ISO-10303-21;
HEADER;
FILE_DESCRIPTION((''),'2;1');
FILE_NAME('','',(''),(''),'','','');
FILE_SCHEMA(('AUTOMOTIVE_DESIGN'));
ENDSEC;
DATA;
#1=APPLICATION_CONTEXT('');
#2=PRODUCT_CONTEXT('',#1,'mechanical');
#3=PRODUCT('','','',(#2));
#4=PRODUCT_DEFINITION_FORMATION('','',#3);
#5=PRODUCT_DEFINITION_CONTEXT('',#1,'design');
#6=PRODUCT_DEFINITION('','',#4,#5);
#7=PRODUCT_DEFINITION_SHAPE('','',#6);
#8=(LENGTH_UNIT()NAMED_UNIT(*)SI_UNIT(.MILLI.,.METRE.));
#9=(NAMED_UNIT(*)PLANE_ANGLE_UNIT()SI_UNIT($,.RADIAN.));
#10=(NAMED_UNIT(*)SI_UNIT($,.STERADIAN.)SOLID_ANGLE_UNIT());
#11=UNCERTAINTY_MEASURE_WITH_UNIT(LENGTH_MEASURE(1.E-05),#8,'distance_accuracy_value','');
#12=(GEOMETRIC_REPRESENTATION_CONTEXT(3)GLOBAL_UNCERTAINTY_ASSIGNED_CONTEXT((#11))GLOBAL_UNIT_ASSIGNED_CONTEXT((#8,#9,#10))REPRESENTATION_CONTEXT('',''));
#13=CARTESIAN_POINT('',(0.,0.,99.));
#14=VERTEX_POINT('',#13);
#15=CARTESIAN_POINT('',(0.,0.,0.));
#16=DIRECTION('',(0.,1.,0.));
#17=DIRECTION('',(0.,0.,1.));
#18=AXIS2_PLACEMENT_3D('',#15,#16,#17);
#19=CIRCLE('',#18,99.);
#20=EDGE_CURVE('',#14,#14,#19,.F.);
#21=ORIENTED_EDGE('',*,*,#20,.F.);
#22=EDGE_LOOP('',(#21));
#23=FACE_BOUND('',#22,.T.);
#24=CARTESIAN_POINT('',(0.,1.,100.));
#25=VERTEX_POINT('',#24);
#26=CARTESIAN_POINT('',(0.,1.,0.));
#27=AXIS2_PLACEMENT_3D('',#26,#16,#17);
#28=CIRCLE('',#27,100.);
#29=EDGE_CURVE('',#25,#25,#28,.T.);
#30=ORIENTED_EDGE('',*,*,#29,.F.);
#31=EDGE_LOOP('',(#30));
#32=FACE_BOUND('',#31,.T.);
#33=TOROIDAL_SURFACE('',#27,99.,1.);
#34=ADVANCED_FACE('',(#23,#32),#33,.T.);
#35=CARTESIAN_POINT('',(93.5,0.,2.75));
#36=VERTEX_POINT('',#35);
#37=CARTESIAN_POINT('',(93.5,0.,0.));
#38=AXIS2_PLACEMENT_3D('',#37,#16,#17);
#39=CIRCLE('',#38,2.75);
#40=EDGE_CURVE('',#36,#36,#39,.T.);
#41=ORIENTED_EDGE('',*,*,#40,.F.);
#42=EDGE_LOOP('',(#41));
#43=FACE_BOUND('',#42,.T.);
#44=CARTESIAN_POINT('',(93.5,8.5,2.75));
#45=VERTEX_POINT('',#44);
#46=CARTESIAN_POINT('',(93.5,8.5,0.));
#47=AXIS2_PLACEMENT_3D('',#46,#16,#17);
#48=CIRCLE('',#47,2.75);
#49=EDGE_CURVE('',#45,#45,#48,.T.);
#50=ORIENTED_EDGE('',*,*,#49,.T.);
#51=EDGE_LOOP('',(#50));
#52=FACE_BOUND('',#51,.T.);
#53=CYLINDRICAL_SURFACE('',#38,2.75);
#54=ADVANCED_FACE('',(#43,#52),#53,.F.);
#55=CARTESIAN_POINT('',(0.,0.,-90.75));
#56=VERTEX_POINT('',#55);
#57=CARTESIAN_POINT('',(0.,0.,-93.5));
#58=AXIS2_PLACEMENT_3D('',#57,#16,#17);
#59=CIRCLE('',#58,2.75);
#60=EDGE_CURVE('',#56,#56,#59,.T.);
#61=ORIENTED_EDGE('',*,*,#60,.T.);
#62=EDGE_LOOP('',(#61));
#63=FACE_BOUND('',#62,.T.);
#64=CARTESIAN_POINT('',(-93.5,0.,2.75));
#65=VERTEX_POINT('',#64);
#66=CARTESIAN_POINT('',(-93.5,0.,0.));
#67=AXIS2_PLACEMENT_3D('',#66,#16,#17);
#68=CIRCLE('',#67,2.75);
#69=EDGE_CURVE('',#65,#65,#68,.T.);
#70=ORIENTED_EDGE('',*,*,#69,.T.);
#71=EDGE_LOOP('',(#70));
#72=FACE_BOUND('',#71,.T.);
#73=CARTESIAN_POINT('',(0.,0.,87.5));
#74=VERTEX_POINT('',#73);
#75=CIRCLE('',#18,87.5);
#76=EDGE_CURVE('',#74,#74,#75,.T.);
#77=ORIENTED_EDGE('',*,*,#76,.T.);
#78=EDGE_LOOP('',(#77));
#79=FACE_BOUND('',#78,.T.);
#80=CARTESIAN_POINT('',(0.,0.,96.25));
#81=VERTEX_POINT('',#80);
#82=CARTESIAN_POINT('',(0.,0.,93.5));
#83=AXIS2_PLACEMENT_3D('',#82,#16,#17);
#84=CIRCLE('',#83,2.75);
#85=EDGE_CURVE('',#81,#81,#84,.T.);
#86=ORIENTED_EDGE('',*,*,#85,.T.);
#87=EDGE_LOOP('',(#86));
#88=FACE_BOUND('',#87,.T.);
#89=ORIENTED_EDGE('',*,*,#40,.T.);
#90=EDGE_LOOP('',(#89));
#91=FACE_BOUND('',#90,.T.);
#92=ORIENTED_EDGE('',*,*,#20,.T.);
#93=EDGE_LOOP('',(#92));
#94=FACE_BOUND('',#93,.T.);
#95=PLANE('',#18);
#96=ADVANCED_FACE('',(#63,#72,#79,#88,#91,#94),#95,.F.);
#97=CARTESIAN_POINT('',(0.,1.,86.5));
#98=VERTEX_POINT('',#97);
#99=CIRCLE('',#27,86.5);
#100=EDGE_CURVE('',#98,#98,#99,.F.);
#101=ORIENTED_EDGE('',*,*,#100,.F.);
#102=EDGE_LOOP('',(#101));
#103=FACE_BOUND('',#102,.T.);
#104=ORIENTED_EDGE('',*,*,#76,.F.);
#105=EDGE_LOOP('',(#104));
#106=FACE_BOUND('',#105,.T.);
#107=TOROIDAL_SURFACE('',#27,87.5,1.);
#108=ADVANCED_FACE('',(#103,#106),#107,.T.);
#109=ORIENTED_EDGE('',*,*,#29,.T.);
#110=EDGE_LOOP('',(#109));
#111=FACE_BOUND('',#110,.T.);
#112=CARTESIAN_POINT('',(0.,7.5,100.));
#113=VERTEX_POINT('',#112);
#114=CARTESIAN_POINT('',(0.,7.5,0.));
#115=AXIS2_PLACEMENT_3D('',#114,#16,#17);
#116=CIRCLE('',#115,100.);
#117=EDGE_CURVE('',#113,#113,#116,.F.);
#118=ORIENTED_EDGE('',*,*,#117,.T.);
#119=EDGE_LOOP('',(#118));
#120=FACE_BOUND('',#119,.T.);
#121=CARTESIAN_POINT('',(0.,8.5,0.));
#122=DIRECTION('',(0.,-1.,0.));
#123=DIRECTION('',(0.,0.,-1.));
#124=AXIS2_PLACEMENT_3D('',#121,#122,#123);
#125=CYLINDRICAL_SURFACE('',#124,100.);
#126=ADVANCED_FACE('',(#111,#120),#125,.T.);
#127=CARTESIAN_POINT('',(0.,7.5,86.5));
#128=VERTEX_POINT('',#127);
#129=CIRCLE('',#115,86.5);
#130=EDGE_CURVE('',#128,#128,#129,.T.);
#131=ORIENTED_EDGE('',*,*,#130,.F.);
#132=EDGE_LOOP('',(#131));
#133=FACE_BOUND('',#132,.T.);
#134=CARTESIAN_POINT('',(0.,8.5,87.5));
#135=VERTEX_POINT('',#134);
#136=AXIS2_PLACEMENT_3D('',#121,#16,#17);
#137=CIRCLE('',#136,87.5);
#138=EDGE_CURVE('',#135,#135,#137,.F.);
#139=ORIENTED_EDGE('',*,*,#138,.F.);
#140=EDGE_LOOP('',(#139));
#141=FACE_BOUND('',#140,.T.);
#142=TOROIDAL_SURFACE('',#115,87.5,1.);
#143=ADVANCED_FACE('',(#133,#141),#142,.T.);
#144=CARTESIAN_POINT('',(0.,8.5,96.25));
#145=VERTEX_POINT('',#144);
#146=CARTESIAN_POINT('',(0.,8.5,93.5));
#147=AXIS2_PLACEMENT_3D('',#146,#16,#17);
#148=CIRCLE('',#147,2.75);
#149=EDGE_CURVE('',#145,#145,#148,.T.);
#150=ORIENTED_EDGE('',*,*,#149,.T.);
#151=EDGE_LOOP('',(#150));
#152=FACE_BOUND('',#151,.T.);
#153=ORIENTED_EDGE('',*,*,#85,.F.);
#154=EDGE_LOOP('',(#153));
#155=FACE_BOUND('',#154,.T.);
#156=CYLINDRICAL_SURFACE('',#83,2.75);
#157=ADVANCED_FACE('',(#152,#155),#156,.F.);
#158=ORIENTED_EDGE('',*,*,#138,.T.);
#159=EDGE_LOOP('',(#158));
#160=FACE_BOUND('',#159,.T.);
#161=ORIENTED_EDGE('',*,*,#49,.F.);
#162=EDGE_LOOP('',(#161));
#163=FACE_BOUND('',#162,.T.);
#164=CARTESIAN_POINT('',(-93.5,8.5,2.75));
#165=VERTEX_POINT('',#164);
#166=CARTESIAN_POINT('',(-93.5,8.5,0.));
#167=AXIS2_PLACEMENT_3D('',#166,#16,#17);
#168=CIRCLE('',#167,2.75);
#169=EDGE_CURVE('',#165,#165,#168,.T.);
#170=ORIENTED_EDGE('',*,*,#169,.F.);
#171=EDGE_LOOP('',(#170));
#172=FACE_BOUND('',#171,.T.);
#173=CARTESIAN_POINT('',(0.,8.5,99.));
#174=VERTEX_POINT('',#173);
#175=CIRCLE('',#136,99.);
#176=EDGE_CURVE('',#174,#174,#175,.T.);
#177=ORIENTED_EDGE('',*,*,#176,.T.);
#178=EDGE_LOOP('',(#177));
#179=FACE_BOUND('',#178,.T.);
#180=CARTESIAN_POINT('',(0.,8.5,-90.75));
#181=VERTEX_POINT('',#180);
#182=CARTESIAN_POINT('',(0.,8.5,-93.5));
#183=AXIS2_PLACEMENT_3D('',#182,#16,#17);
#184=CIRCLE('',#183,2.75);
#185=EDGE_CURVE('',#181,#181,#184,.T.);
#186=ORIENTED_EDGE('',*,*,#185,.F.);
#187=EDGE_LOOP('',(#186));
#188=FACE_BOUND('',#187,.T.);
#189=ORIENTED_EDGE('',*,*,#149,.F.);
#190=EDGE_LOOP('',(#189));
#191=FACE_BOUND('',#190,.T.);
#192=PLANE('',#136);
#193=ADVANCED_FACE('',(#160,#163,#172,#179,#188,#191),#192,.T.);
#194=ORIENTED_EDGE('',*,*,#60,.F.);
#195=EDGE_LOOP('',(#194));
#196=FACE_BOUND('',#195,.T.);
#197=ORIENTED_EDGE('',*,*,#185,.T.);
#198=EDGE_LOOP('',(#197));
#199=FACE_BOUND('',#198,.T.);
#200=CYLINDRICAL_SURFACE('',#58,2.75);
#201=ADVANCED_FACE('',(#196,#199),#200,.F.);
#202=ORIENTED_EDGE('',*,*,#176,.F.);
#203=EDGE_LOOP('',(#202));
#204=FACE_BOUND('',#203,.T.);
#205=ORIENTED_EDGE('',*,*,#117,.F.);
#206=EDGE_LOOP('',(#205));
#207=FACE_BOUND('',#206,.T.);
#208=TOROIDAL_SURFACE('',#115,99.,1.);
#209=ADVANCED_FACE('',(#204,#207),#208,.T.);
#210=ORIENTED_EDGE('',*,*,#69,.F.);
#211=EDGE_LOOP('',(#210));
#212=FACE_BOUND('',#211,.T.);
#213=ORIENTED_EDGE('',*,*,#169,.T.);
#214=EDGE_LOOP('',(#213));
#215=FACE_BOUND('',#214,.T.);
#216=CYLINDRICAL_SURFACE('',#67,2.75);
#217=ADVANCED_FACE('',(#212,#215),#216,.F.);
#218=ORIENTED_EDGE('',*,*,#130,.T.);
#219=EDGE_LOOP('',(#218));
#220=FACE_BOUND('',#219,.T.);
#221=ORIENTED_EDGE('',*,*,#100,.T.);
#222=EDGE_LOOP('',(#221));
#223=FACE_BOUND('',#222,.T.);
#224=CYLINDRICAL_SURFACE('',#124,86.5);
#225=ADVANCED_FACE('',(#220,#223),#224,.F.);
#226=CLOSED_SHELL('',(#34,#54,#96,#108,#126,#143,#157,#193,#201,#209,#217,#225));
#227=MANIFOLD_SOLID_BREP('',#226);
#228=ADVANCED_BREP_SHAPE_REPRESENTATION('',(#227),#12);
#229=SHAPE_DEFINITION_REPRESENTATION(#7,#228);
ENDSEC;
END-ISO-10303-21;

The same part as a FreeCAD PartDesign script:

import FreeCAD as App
import Part
import Sketcher
from FreeCAD import Vector
Q = App.Units.Quantity


def edges_at(feature, points):
    """Names of the edges that pass closest to the given points."""
    edges = feature.Shape.Edges
    near = lambda p: min(range(len(edges)), key=lambda i: edges[i].distToShape(Part.Vertex(*p))[0])
    return sorted({f"Edge{near(p) + 1}" for p in points})

doc = App.newDocument("Part")
body = doc.addObject("PartDesign::Body", "Body")

# Sketch on XZ plane
sketch1 = doc.addObject("Sketcher::SketchObject", "Sketch")
body.addObject(sketch1)
sketch1.AttachmentSupport = (doc.XZ_Plane, [""])
sketch1.MapMode = "FlatFace"
sketch1.addGeometry(Part.Circle(Vector(0, 0, 0), Vector(0, 0, 1), 100), False)
sketch1.addGeometry(Part.Circle(Vector(0, 0, 0), Vector(0, 0, 1), 86), False)
sketch1.addConstraint(Sketcher.Constraint("Coincident", 0, 3, -1, 1))
sketch1.addConstraint(Sketcher.Constraint("Coincident", 1, 3, -1, 1))
sketch1.addConstraint(Sketcher.Constraint("Diameter", 0, Q("200 mm")))
sketch1.addConstraint(Sketcher.Constraint("Diameter", 1, Q("173 mm")))
pad1 = doc.addObject("PartDesign::Pad", "Pad")
body.addObject(pad1)
pad1.Profile = sketch1
pad1.Length = 8.5
pad1.Reversed = True
doc.recompute()

fillet = doc.addObject("PartDesign::Fillet", "Fillet")
body.addObject(fillet)
fillet.Base = (pad1, edges_at(pad1, [
    (0, 0, -100),
    (0, 8.5, -100),
    (0, 0, -86.5),
    (0, 8.5, -86.5),
]))
fillet.Radius = 1

# Sketch on XZ plane
sketch2 = doc.addObject("Sketcher::SketchObject", "Sketch001")
body.addObject(sketch2)
sketch2.AttachmentSupport = (doc.XZ_Plane, [""])
sketch2.MapMode = "FlatFace"
sketch2.AttachmentOffset = App.Placement(Vector(0, 0, -8.5), App.Rotation())
sketch2.addGeometry(Part.Circle(Vector(0, -93.5, 0), Vector(0, 0, 1), 2.8), False)
sketch2.addGeometry(Part.Circle(Vector(93.5, 0, 0), Vector(0, 0, 1), 2.8), False)
sketch2.addGeometry(Part.Circle(Vector(0, 93.5, 0), Vector(0, 0, 1), 2.8), False)
sketch2.addGeometry(Part.Circle(Vector(-93.5, 0, 0), Vector(0, 0, 1), 2.8), False)
sketch2.addConstraint(Sketcher.Constraint("Equal", 0, 1))
sketch2.addConstraint(Sketcher.Constraint("Equal", 1, 2))
sketch2.addConstraint(Sketcher.Constraint("Equal", 2, 3))
sketch2.addConstraint(Sketcher.Constraint("Symmetric", 0, 3, 2, 3, -1, 1))
sketch2.addConstraint(Sketcher.Constraint("Symmetric", 1, 3, 3, 3, -1, 1))
sketch2.addConstraint(Sketcher.Constraint("PointOnObject", 0, 3, -2))
sketch2.addConstraint(Sketcher.Constraint("PointOnObject", 1, 3, -1))
sketch2.addConstraint(Sketcher.Constraint("Diameter", 0, Q("5.5 mm")))
sketch2.addConstraint(Sketcher.Constraint("DistanceY", 0, 3, 2, 3, Q("187 mm")))
sketch2.addConstraint(Sketcher.Constraint("DistanceX", 3, 3, 1, 3, Q("187 mm")))
pocket1 = doc.addObject("PartDesign::Pocket", "Pocket")
body.addObject(pocket1)
pocket1.Profile = sketch2
pocket1.Type = "ThroughAll"
pocket1.Reversed = True

doc.recompute()
